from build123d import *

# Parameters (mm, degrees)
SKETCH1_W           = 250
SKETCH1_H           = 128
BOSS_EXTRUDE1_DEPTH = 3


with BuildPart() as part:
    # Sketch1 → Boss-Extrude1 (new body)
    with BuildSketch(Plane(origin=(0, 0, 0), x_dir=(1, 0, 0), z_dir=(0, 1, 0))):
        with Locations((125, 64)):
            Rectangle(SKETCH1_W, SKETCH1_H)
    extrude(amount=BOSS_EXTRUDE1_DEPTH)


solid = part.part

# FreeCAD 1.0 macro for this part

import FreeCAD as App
import Part
import Sketcher
from FreeCAD import Vector
Q = App.Units.Quantity

doc = App.newDocument("Part")
body = doc.addObject("PartDesign::Body", "Body")

# Sketch on XZ plane
sketch1 = body.newObject("Sketcher::SketchObject", "Sketch")
sketch1.AttachmentSupport = (doc.getObject("XZ_Plane"), [""])
sketch1.MapMode = "FlatFace"
sketch1.addGeometry(Part.LineSegment(Vector(0, -128, 0), Vector(0, 0, 0)), False)
sketch1.addGeometry(Part.LineSegment(Vector(0, 0, 0), Vector(250, 0, 0)), False)
sketch1.addGeometry(Part.LineSegment(Vector(250, 0, 0), Vector(250, -128, 0)), False)
sketch1.addGeometry(Part.LineSegment(Vector(250, -128, 0), Vector(0, -128, 0)), False)
sketch1.addConstraint(Sketcher.Constraint("Coincident", 0, 2, 1, 1))
sketch1.addConstraint(Sketcher.Constraint("Coincident", 1, 2, 2, 1))
sketch1.addConstraint(Sketcher.Constraint("Coincident", 2, 2, 3, 1))
sketch1.addConstraint(Sketcher.Constraint("Coincident", 3, 2, 0, 1))
sketch1.addConstraint(Sketcher.Constraint("Vertical", 0))
sketch1.addConstraint(Sketcher.Constraint("Horizontal", 1))
sketch1.addConstraint(Sketcher.Constraint("Vertical", 2))
sketch1.addConstraint(Sketcher.Constraint("Horizontal", 3))
sketch1.addConstraint(Sketcher.Constraint("Coincident", 0, 2, -1, 1))
sketch1.addConstraint(Sketcher.Constraint("DistanceX", 1, 1, 1, 2, Q("250 mm")))
sketch1.addConstraint(Sketcher.Constraint("DistanceY", 0, 1, 0, 2, Q("128 mm")))
pad1 = body.newObject("PartDesign::Pad", "Pad")
pad1.Profile = sketch1
pad1.Length = 3
pad1.Reversed = True

doc.recompute()
